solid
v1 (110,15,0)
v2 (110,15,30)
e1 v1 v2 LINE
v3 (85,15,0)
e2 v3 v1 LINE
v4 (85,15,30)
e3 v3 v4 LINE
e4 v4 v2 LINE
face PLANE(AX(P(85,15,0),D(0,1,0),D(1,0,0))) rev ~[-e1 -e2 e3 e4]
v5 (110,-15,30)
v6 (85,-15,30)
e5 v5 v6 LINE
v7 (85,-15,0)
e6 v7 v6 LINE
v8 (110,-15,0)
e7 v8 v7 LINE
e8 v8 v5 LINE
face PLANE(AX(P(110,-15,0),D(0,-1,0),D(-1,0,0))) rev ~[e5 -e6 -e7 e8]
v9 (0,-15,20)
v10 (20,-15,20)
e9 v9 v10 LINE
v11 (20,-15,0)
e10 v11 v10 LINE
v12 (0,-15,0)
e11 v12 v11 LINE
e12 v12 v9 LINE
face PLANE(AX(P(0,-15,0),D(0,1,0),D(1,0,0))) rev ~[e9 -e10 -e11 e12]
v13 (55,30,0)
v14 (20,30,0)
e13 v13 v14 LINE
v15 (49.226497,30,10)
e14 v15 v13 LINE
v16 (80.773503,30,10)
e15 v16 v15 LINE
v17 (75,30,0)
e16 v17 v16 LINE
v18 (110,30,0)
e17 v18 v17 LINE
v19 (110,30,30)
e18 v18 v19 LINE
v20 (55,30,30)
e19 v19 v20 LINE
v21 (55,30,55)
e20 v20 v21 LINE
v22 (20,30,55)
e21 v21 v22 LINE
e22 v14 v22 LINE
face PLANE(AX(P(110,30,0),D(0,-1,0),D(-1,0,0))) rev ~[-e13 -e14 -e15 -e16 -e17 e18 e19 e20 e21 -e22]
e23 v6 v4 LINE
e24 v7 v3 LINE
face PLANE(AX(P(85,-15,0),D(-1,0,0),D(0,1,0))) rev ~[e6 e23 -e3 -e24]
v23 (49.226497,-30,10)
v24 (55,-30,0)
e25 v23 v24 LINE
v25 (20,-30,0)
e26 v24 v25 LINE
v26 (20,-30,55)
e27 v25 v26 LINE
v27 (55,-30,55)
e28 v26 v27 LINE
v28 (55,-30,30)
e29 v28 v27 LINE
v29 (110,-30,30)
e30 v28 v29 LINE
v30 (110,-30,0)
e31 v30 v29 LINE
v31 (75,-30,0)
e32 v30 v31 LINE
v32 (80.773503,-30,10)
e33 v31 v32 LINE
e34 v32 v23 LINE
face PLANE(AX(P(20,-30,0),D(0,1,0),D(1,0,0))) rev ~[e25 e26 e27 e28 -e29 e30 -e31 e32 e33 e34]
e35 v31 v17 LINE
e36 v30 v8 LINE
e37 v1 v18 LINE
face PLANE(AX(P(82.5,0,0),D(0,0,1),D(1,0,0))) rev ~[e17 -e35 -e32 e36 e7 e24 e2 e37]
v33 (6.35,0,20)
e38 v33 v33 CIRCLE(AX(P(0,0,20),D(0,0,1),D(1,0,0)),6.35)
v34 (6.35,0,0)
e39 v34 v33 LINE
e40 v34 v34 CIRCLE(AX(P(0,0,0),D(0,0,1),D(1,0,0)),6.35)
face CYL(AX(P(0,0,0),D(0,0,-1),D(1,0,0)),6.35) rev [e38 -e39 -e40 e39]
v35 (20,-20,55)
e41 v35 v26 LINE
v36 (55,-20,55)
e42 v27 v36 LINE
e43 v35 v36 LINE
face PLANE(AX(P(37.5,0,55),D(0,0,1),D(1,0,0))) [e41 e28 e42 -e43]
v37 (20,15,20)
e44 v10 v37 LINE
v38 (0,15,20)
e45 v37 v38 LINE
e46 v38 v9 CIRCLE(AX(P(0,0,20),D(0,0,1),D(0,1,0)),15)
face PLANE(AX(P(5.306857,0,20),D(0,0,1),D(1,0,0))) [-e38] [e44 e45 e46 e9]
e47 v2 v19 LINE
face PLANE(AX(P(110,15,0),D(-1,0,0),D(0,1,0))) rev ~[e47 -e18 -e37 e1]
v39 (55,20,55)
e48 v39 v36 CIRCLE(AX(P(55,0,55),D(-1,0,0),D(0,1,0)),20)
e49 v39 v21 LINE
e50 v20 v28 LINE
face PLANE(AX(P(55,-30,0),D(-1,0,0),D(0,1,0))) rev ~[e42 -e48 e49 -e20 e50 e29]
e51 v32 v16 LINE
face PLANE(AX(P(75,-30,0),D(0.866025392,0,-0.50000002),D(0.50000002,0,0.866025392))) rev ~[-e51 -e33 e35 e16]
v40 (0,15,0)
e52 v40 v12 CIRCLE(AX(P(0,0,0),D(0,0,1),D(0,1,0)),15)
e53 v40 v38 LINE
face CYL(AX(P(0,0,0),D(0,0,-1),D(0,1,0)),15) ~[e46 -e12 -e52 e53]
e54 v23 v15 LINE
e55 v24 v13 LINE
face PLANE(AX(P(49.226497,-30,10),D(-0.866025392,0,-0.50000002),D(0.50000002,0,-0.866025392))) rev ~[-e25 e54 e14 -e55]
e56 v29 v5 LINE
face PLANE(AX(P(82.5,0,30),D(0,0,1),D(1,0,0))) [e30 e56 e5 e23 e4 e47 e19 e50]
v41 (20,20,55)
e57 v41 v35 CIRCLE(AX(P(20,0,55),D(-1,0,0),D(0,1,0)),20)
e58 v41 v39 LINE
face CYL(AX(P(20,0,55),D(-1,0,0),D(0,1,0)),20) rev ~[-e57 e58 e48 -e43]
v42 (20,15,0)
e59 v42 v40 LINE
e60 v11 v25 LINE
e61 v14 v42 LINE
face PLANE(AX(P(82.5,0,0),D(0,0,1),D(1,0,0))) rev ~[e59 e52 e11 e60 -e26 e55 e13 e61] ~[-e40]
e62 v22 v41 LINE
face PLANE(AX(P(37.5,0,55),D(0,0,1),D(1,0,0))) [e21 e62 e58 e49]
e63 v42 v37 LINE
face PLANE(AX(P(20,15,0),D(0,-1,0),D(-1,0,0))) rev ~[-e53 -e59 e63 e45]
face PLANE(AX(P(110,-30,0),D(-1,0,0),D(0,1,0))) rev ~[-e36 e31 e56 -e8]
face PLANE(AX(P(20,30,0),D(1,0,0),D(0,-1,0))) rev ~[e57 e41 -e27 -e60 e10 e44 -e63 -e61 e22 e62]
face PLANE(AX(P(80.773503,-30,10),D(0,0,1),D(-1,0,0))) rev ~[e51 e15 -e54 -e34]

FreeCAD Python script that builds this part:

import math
import FreeCAD as App
import Part
import Sketcher

V = App.Vector
Q = App.Units.Quantity


def add_polygon(sketch, points):
    """Adds a closed chain of lines whose ends are joined by coincident constraints."""
    first, n = sketch.GeometryCount, len(points)
    for a, b in zip(points, points[1:] + points[:1]):
        sketch.addGeometry(Part.LineSegment(App.Vector(*a, 0), App.Vector(*b, 0)), False)
    for i in range(n):
        sketch.addConstraint(Sketcher.Constraint("Coincident", first + i, 2, first + (i + 1) % n, 1))

doc = App.newDocument("Part")
body = doc.addObject("PartDesign::Body", "Body")

# Sketch on XY plane
sketch1 = body.newObject("Sketcher::SketchObject", "Sketch")
sketch1.AttachmentSupport = (doc.getObject("XY_Plane"), [""])
sketch1.MapMode = "FlatFace"
sketch1.addGeometry([
    Part.LineSegment(V(20, -15, 0), V(20, 15, 0)),  # 0
    Part.LineSegment(V(20, 15, 0), V(0, 15, 0)),  # 1
    Part.ArcOfCircle(Part.Circle(V(0, 0, 0), V(0, 0, 1), 15), math.radians(90), math.radians(270)),  # 2
    Part.LineSegment(V(0, -15, 0), V(20, -15, 0)),  # 3
    Part.Circle(V(0, 0, 0), V(0, 0, 1), 6),  # 4
], False)
sketch1.addConstraint([
    Sketcher.Constraint("Coincident", 0, 2, 1, 1),
    Sketcher.Constraint("Tangent", 1, 2, 2, 1),
    Sketcher.Constraint("Tangent", 2, 2, 3, 1),
    Sketcher.Constraint("Coincident", 3, 2, 0, 1),
    Sketcher.Constraint("Vertical", 0),
    Sketcher.Constraint("Horizontal", 1),
    Sketcher.Constraint("Horizontal", 3),
    Sketcher.Constraint("Coincident", 2, 3, -1, 1),
    Sketcher.Constraint("Coincident", 4, 3, -1, 1),
    Sketcher.Constraint("Radius", 2, 15.0),
    Sketcher.Constraint("Diameter", 4, 12.7),
    Sketcher.Constraint("DistanceX", 1, 2, 1, 1, 20.0),
])
pad1 = body.newObject("PartDesign::Pad", "Pad")
pad1.Profile = sketch1
pad1.Length = 20

# Sketch on XY plane
sketch2 = body.newObject("Sketcher::SketchObject", "Sketch001")
sketch2.AttachmentSupport = (doc.getObject("XY_Plane"), [""])
sketch2.MapMode = "FlatFace"
add_polygon(sketch2, [(110, 30), (20, 30), (20, -30), (110, -30), (110, -15), (85, -15), (85, 15), (110, 15)])  # lines 0-7
sketch2.addConstraint([
    Sketcher.Constraint("Horizontal", 0),
    Sketcher.Constraint("Vertical", 1),
    Sketcher.Constraint("Horizontal", 2),
    Sketcher.Constraint("Vertical", 3),
    Sketcher.Constraint("Horizontal", 4),
    Sketcher.Constraint("Vertical", 5),
    Sketcher.Constraint("Horizontal", 6),
    Sketcher.Constraint("Vertical", 7),
    Sketcher.Constraint("Symmetric", 3, 2, 6, 2, -1),
    Sketcher.Constraint("Equal", 3, 7),
    Sketcher.Constraint("DistanceX", 0, 2, 0, 1, 90.0),
    Sketcher.Constraint("DistanceX", 4, 2, 4, 1, 25.0),
    Sketcher.Constraint("DistanceY", 1, 2, 1, 1, 60.0),
    Sketcher.Constraint("DistanceY", 3, 1, 3, 2, 15.0),
    Sketcher.Constraint("DistanceX", -1, 1, 0, 2, 20.0),
])
pad2 = body.newObject("PartDesign::Pad", "Pad001")
pad2.Profile = sketch2
pad2.Length = 30

# Sketch on XY plane
sketch3 = body.newObject("Sketcher::SketchObject", "Sketch002")
sketch3.AttachmentSupport = (doc.getObject("XY_Plane"), [""])
sketch3.MapMode = "FlatFace"
add_polygon(sketch3, [(55, 30), (20, 30), (20, -30), (55, -30)])  # lines 0-3
sketch3.addConstraint([
    Sketcher.Constraint("Horizontal", 0),
    Sketcher.Constraint("Vertical", 1),
    Sketcher.Constraint("Horizontal", 2),
    Sketcher.Constraint("Vertical", 3),
    Sketcher.Constraint("DistanceX", 0, 2, 0, 1, 35.0),
    Sketcher.Constraint("DistanceY", 1, 2, 1, 1, 60.0),
    Sketcher.Constraint("DistanceX", -1, 1, 0, 2, 20.0),
    Sketcher.Constraint("DistanceY", -1, 1, 0, 2, 30.0),
])
pad3 = body.newObject("PartDesign::Pad", "Pad002")
pad3.Profile = sketch3
pad3.Length = 55

# Sketch on YZ plane
sketch4 = body.newObject("Sketcher::SketchObject", "Sketch003")
sketch4.AttachmentSupport = (doc.getObject("YZ_Plane"), [""])
sketch4.MapMode = "FlatFace"
sketch4.AttachmentOffset = App.Placement(V(0, 0, 20), App.Rotation())
sketch4.addGeometry([
    Part.LineSegment(V(-20, 55, 0), V(20, 55, 0)),
    Part.ArcOfCircle(Part.Circle(V(0, 55, 0), V(0, 0, 1), 20), math.radians(180), math.radians(360)),
], False)
sketch4.addConstraint([
    Sketcher.Constraint("Coincident", 0, 1, 1, 1),
    Sketcher.Constraint("Coincident", 1, 2, 0, 2),
    Sketcher.Constraint("Horizontal", 0),
    Sketcher.Constraint("PointOnObject", 1, 3, -2),
    Sketcher.Constraint("Horizontal", 1, 3, 0, 1),
    Sketcher.Constraint("Radius", 1, 20.0),
    Sketcher.Constraint("DistanceY", -1, 1, 1, 3, 55.0),
])
pocket1 = body.newObject("PartDesign::Pocket", "Pocket")
pocket1.Profile = sketch4
pocket1.Type = "ThroughAll"
pocket1.Reversed = True

# Sketch on XZ plane
sketch5 = body.newObject("Sketcher::SketchObject", "Sketch004")
sketch5.AttachmentSupport = (doc.getObject("XZ_Plane"), [""])
sketch5.MapMode = "FlatFace"
sketch5.AttachmentOffset = App.Placement(V(0, 0, 30), App.Rotation())
add_polygon(sketch5, [(49, 10), (55, 0), (75, 0), (81, 10)])  # lines 0-3
sketch5.addConstraint([
    Sketcher.Constraint("Horizontal", 1),
    Sketcher.Constraint("Horizontal", 3),
    Sketcher.Constraint("PointOnObject", 0, 2, -1),
    Sketcher.Constraint("Equal", 0, 2),
    Sketcher.Constraint("DistanceX", 1, 1, 1, 2, 20.0),
    Sketcher.Constraint("Angle", 0, Q("-59.999999 deg")),
    Sketcher.Constraint("DistanceX", -1, 1, 0, 2, 55.0),
    Sketcher.Constraint("DistanceY", -1, 1, 2, 2, 10.0),
])
pocket2 = body.newObject("PartDesign::Pocket", "Pocket001")
pocket2.Profile = sketch5
pocket2.Type = "ThroughAll"

doc.recompute()
